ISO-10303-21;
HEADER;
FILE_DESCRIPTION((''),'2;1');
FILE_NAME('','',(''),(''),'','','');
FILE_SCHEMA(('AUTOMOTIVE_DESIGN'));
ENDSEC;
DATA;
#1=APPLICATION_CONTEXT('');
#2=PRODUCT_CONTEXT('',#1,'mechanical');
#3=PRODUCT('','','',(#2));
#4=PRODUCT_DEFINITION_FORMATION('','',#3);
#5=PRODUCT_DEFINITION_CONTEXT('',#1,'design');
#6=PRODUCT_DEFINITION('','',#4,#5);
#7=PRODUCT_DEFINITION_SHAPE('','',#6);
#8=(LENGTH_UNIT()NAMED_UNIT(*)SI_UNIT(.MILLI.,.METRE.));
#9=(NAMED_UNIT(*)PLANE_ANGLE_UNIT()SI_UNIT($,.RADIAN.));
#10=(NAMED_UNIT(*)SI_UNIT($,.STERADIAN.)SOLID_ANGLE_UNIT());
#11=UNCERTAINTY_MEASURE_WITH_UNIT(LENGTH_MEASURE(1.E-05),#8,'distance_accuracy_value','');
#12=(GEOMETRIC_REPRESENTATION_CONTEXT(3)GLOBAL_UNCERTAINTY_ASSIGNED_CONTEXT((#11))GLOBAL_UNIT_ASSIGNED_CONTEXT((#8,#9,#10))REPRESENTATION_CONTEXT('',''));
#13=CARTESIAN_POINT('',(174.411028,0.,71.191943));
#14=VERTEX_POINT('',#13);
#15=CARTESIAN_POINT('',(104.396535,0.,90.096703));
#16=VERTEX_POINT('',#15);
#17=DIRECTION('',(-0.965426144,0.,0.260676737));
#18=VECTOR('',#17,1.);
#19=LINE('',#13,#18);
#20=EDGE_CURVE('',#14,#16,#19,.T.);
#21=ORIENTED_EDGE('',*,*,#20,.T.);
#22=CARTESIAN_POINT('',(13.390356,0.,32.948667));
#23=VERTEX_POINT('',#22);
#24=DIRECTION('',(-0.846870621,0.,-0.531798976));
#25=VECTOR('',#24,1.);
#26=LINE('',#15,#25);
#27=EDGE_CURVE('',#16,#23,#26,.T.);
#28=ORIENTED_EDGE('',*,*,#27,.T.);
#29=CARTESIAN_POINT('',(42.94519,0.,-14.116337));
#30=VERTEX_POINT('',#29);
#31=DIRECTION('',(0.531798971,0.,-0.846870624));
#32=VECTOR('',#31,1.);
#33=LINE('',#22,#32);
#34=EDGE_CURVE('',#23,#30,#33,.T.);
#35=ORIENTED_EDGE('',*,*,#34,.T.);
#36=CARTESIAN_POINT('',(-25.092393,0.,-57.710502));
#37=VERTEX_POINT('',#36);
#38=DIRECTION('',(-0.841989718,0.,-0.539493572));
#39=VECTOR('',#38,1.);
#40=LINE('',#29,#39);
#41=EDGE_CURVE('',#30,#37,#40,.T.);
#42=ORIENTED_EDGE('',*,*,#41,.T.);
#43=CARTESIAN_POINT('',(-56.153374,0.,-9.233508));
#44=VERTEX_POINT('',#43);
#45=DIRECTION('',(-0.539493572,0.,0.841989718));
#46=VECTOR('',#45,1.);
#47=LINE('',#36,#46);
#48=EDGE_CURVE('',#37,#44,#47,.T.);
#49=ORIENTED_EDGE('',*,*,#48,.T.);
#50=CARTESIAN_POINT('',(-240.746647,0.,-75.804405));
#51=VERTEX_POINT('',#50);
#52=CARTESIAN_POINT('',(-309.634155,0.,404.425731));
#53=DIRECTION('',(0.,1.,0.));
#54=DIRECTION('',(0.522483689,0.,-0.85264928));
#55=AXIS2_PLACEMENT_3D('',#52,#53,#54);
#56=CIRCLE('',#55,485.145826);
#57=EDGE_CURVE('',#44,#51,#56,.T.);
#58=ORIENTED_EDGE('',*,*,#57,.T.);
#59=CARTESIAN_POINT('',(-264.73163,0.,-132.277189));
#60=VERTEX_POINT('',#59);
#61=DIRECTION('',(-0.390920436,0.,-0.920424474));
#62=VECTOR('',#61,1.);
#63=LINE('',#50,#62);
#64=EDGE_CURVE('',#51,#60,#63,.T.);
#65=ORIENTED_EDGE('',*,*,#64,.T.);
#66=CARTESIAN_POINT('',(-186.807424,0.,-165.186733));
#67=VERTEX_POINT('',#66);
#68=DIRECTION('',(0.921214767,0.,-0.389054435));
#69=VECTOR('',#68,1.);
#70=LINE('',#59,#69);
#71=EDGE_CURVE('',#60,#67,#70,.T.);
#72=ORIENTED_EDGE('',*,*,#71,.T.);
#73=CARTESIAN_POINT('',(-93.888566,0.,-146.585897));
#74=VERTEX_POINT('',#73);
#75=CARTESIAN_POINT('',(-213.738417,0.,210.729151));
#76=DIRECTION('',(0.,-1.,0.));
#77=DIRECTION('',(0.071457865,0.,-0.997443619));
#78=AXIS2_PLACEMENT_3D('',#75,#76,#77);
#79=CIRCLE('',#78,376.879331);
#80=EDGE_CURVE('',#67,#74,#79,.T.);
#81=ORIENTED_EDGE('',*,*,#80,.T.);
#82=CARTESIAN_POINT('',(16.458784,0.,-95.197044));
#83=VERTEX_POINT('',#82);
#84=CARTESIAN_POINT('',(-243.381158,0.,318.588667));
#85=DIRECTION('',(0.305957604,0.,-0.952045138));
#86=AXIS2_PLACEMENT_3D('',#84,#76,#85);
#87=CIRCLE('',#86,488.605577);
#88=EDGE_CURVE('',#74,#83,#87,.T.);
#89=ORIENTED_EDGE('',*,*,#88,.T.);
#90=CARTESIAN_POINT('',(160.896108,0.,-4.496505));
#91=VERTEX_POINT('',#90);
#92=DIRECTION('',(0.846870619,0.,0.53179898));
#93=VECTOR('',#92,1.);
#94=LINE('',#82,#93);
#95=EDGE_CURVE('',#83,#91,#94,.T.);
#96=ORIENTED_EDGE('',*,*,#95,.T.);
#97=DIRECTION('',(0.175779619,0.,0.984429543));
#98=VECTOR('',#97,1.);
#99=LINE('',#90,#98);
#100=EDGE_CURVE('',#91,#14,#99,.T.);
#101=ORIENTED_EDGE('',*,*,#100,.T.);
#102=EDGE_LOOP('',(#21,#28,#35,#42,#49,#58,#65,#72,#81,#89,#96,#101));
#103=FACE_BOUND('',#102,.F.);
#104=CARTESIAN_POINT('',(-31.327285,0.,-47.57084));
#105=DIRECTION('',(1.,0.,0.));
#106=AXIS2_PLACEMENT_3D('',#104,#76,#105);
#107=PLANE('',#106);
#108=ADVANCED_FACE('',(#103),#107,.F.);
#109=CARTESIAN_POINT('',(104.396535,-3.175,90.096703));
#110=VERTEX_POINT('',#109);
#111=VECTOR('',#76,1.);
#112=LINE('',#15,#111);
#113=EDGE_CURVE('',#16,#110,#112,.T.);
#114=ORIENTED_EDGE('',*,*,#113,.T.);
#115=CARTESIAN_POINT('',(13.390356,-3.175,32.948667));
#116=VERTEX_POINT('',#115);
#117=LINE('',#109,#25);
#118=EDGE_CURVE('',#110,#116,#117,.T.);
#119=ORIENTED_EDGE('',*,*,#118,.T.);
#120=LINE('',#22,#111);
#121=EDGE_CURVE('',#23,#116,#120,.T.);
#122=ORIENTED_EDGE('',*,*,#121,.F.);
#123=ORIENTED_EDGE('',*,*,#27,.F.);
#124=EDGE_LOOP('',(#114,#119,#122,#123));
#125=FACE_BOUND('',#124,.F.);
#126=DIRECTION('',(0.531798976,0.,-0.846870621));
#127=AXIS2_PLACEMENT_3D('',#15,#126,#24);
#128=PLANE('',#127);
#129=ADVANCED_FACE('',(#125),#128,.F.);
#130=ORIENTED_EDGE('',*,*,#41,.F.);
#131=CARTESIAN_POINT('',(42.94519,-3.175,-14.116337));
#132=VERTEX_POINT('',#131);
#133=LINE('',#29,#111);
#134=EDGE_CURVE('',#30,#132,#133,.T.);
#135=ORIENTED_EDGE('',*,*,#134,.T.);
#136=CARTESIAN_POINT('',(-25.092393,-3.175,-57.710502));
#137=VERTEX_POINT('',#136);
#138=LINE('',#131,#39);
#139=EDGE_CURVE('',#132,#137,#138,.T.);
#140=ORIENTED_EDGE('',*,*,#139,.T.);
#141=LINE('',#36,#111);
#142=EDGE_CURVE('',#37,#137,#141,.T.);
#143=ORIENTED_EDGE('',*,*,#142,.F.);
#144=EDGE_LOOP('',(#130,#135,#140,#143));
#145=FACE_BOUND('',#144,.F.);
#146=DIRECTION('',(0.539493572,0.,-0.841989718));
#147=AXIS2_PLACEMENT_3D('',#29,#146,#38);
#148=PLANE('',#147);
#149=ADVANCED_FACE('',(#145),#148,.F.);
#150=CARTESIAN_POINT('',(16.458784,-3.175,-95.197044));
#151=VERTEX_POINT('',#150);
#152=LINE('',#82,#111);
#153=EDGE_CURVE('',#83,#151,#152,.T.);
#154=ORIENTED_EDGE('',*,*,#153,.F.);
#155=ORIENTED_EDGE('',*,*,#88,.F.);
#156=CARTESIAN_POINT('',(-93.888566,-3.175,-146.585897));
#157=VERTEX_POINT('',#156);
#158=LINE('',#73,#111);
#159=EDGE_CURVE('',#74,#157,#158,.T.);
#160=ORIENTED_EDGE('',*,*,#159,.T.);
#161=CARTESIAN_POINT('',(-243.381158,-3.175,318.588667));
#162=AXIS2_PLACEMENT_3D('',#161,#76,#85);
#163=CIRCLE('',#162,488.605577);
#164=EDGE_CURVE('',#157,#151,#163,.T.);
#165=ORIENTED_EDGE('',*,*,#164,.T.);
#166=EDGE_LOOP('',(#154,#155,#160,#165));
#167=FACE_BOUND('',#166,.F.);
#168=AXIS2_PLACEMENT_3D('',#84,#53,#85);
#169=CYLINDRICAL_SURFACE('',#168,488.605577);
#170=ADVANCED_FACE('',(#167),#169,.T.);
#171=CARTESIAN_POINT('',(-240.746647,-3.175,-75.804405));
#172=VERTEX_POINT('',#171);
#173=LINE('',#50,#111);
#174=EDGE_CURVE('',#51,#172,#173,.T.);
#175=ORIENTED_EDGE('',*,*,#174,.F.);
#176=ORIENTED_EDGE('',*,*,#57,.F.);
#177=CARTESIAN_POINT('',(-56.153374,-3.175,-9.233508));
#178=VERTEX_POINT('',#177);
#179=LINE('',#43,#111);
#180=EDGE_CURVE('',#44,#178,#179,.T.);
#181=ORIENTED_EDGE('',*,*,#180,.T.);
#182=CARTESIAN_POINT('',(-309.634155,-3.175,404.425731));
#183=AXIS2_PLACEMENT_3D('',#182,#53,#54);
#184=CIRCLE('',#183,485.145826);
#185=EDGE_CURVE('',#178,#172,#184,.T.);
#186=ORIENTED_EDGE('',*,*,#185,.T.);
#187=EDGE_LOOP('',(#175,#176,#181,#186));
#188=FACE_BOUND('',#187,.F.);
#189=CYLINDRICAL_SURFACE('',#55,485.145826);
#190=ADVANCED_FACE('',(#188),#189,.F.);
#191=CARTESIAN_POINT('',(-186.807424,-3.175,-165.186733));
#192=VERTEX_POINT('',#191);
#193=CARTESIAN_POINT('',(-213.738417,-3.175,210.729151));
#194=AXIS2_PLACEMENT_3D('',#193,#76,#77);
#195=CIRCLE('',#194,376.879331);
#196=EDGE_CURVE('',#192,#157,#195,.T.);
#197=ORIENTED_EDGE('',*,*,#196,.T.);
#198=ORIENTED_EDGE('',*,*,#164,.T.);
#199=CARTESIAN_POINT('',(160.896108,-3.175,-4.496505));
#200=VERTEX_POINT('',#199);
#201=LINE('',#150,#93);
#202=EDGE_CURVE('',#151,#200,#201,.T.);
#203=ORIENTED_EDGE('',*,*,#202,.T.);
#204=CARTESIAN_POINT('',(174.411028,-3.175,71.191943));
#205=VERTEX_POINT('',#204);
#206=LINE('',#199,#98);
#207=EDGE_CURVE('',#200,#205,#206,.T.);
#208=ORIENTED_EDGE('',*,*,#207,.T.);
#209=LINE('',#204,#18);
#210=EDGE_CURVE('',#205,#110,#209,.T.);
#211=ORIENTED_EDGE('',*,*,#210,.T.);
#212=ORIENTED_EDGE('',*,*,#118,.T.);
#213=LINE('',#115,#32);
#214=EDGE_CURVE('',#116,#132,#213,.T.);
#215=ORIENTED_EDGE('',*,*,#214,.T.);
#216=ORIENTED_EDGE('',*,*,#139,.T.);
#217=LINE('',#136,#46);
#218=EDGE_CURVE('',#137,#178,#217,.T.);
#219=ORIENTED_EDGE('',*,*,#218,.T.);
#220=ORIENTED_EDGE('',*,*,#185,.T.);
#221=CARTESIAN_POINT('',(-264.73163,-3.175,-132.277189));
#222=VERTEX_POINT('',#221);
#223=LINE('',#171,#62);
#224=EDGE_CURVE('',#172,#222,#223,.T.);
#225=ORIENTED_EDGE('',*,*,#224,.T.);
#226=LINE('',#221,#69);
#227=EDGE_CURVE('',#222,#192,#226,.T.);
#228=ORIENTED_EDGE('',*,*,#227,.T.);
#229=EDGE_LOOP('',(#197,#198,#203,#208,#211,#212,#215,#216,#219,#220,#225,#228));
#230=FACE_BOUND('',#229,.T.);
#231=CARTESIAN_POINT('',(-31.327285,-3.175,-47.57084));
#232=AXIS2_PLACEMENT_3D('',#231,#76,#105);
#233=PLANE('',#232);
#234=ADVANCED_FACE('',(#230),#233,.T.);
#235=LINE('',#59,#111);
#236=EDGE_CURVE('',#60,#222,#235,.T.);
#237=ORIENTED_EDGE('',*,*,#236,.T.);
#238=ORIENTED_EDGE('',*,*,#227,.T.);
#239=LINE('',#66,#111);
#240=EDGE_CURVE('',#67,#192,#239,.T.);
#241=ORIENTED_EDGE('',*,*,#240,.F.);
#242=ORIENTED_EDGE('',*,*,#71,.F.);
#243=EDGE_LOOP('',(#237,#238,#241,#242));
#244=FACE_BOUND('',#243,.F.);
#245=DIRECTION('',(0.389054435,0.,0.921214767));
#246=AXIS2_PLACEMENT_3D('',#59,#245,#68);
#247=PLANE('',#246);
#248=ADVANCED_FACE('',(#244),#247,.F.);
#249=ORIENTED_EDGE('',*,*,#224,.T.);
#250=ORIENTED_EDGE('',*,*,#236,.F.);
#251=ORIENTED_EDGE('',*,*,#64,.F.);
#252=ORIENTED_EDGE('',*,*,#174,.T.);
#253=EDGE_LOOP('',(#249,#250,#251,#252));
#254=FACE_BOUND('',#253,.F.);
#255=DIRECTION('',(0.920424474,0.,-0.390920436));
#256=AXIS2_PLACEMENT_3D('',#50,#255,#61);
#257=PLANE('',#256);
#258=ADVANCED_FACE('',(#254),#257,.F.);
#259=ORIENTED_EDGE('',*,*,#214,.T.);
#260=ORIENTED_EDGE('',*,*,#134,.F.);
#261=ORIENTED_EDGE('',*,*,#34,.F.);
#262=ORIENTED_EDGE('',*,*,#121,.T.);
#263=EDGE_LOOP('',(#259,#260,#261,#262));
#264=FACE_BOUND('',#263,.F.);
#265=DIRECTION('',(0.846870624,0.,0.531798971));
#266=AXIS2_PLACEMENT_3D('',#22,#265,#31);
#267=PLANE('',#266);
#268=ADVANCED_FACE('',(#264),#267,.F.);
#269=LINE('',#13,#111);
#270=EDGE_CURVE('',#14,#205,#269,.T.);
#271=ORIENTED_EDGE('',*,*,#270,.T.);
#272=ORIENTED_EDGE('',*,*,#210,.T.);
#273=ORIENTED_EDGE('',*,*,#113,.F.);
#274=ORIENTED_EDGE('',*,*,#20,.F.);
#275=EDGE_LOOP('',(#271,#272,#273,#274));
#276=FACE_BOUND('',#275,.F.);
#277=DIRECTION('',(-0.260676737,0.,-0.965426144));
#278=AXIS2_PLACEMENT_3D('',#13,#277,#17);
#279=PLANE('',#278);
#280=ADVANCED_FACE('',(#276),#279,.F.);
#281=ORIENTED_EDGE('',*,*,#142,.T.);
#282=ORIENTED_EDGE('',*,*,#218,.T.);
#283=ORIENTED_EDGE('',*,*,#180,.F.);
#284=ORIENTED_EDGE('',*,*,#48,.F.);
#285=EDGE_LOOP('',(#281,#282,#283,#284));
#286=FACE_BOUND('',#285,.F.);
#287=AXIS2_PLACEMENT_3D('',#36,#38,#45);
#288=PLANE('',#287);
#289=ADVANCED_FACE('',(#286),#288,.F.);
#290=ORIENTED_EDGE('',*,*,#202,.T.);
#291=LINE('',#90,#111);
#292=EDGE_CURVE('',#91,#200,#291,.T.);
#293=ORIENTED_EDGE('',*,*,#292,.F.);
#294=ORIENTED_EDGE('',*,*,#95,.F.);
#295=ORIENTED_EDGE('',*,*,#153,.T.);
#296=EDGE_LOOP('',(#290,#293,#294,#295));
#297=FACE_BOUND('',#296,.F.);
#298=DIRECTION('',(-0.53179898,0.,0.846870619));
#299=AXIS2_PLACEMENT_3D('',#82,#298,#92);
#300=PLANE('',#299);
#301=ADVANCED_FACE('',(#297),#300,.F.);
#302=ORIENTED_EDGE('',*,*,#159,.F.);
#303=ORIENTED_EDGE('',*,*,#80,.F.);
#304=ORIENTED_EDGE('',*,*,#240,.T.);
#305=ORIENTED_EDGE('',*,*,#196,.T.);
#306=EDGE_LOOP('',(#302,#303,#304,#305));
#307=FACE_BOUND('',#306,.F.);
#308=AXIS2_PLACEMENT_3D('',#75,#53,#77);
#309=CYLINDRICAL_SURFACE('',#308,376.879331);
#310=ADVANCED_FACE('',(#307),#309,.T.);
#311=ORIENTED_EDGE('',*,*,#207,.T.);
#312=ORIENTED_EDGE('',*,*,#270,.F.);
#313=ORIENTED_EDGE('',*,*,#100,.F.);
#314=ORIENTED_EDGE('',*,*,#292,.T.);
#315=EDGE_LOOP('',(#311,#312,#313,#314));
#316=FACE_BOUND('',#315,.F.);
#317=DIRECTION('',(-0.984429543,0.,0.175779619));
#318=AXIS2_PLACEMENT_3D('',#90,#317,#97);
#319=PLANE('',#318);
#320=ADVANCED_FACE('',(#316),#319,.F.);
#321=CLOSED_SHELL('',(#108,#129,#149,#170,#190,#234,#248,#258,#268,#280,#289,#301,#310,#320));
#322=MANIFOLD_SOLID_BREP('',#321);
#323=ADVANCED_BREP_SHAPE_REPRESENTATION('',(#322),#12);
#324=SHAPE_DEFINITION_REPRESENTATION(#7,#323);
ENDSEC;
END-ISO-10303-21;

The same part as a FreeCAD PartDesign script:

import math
import FreeCAD as App
import Part
import Sketcher
Q = App.Units.Quantity

doc = App.newDocument("Part")
params = doc.addObject("Spreadsheet::Sheet", "Params")
for row, (alias, value) in enumerate([
    ("sketch1_length", "2.188 in"),
    ("pad1_length", "0.125 in"),
], start=1):
    params.set(f"A{row}", alias)
    params.set(f"B{row}", "=" + value)
    params.setAlias(f"B{row}", alias)

body = doc.addObject("PartDesign::Body", "Body")

# Sketch on XZ plane
sketch1 = body.newObject("Sketcher::SketchObject", "Sketch")
sketch1.AttachmentSupport = (doc.getObject("XZ_Plane"), [""])
sketch1.MapMode = "FlatFace"
sketch1.addGeometry(Part.LineSegment(App.Vector(104.396535, 90.096703, 0), App.Vector(13.390356, 32.948667, 0)), False)
sketch1.addGeometry(Part.LineSegment(App.Vector(13.390356, 32.948667, 0), App.Vector(42.94519, -14.116337, 0)), False)
sketch1.addGeometry(Part.LineSegment(App.Vector(42.94519, -14.116337, 0), App.Vector(-25.092393, -57.710502, 0)), False)
sketch1.addGeometry(Part.LineSegment(App.Vector(-25.092393, -57.710502, 0), App.Vector(-56.153374, -9.233508, 0)), False)
sketch1.addGeometry(Part.ArcOfCircle(Part.Circle(App.Vector(-309.634155, 404.425731, 0), App.Vector(0, 0, 1), 485.145826), math.radians(-81.836788), math.radians(-58.501)), False)
sketch1.addGeometry(Part.LineSegment(App.Vector(-240.746647, -75.804405, 0), App.Vector(-264.73163, -132.277189, 0)), False)
sketch1.addGeometry(Part.LineSegment(App.Vector(-264.73163, -132.277189, 0), App.Vector(-186.807424, -165.186733, 0)), False)
sketch1.addGeometry(Part.ArcOfCircle(Part.Circle(App.Vector(-213.738417, 210.729151, 0), App.Vector(0, 0, 1), 376.879331), math.radians(-85.902274), math.radians(-71.457627)), False)
sketch1.addGeometry(Part.ArcOfCircle(Part.Circle(App.Vector(-243.381158, 318.588667, 0), App.Vector(0, 0, 1), 488.605577), math.radians(-72.184215), math.radians(-57.872915)), False)
sketch1.addGeometry(Part.LineSegment(App.Vector(16.458784, -95.197044, 0), App.Vector(160.896108, -4.496505, 0)), False)
sketch1.addGeometry(Part.LineSegment(App.Vector(160.896108, -4.496505, 0), App.Vector(174.411028, 71.191943, 0)), False)
sketch1.addGeometry(Part.LineSegment(App.Vector(174.411028, 71.191943, 0), App.Vector(104.396535, 90.096703, 0)), False)
sketch1.addConstraint(Sketcher.Constraint("Coincident", 0, 2, 1, 1))
sketch1.addConstraint(Sketcher.Constraint("Coincident", 1, 2, 2, 1))
sketch1.addConstraint(Sketcher.Constraint("Coincident", 2, 2, 3, 1))
sketch1.addConstraint(Sketcher.Constraint("Coincident", 3, 2, 4, 2))
sketch1.addConstraint(Sketcher.Constraint("Coincident", 4, 1, 5, 1))
sketch1.addConstraint(Sketcher.Constraint("Coincident", 5, 2, 6, 1))
sketch1.addConstraint(Sketcher.Constraint("Coincident", 6, 2, 7, 1))
sketch1.addConstraint(Sketcher.Constraint("Coincident", 7, 2, 8, 1))
sketch1.addConstraint(Sketcher.Constraint("Coincident", 8, 2, 9, 1))
sketch1.addConstraint(Sketcher.Constraint("Coincident", 9, 2, 10, 1))
sketch1.addConstraint(Sketcher.Constraint("Coincident", 10, 2, 11, 1))
sketch1.addConstraint(Sketcher.Constraint("Coincident", 11, 2, 0, 1))
sketch1.addConstraint(Sketcher.Constraint("Distance", 1, Q("2.188 in")))
sketch1.addConstraint(Sketcher.Constraint("Radius", 7, 376.879331))
sketch1.addConstraint(Sketcher.Constraint("DistanceX", -1, 1, 11, 2, Q("4.1100998 in")))
sketch1.addConstraint(Sketcher.Constraint("Radius", 4, 485.145826))
sketch1.addConstraint(Sketcher.Constraint("Radius", 8, 488.605577))
sketch1.addConstraint(Sketcher.Constraint("DistanceY", 2, 2, -1, 1, 57.710502))
sketch1.addConstraint(Sketcher.Constraint("DistanceY", 0, 2, 8, 3, 285.64))
sketch1.addConstraint(Sketcher.Constraint("DistanceX", 2, 2, 9, 2, 185.988501))
sketch1.addConstraint(Sketcher.Constraint("Distance", 3, 57.57433))
sketch1.addConstraint(Sketcher.Constraint("Distance", 9, 170.55418))
sketch1.addConstraint(Sketcher.Constraint("Distance", 10, 76.885592))
sketch1.addConstraint(Sketcher.Constraint("DistanceY", -1, 1, 4, 3, 404.425731))
sketch1.addConstraint(Sketcher.Constraint("DistanceY", -1, 1, 7, 3, 210.729151))
sketch1.addConstraint(Sketcher.Constraint("DistanceX", -1, 1, 1, 2, 42.94519))
sketch1.addConstraint(Sketcher.Constraint("DistanceX", 5, 2, -1, 1, 264.73163))
sketch1.addConstraint(Sketcher.Constraint("DistanceY", 5, 2, -1, 1, 132.277189))
sketch1.addConstraint(Sketcher.Constraint("DistanceX", -1, 1, 9, 2, 160.896108))
sketch1.addConstraint(Sketcher.Constraint("DistanceX", 4, 3, 7, 3, 95.895738))
sketch1.addConstraint(Sketcher.Constraint("DistanceX", 8, 3, 7, 3, 29.642741))
sketch1.addConstraint(Sketcher.Constraint("DistanceX", 4, 3, 0, 2, 323.024511))
sketch1.addConstraint(Sketcher.Constraint("DistanceX", 2, 2, 0, 2, 38.482749))
sketch1.addConstraint(Sketcher.Constraint("DistanceY", 2, 2, 0, 2, 90.659169))
sketch1.addConstraint(Sketcher.Constraint("DistanceY", 4, 1, 0, 2, 108.753072))
sketch1.addConstraint(Sketcher.Constraint("DistanceX", 6, 2, 2, 2, 161.715031))
sketch1.addConstraint(Sketcher.Constraint("DistanceY", 1, 2, 9, 2, 9.619832))
sketch1.addConstraint(Sketcher.Constraint("DistanceX", 9, 2, 10, 2, 13.51492))
sketch1.addConstraint(Sketcher.Constraint("DistanceY", 10, 2, 11, 2, 18.90476))
sketch1.setExpression("Constraints[12]", "Params.sketch1_length")
pad1 = body.newObject("PartDesign::Pad", "Pad")
pad1.Profile = sketch1
pad1.setExpression("Length", "Params.pad1_length")

doc.recompute()
